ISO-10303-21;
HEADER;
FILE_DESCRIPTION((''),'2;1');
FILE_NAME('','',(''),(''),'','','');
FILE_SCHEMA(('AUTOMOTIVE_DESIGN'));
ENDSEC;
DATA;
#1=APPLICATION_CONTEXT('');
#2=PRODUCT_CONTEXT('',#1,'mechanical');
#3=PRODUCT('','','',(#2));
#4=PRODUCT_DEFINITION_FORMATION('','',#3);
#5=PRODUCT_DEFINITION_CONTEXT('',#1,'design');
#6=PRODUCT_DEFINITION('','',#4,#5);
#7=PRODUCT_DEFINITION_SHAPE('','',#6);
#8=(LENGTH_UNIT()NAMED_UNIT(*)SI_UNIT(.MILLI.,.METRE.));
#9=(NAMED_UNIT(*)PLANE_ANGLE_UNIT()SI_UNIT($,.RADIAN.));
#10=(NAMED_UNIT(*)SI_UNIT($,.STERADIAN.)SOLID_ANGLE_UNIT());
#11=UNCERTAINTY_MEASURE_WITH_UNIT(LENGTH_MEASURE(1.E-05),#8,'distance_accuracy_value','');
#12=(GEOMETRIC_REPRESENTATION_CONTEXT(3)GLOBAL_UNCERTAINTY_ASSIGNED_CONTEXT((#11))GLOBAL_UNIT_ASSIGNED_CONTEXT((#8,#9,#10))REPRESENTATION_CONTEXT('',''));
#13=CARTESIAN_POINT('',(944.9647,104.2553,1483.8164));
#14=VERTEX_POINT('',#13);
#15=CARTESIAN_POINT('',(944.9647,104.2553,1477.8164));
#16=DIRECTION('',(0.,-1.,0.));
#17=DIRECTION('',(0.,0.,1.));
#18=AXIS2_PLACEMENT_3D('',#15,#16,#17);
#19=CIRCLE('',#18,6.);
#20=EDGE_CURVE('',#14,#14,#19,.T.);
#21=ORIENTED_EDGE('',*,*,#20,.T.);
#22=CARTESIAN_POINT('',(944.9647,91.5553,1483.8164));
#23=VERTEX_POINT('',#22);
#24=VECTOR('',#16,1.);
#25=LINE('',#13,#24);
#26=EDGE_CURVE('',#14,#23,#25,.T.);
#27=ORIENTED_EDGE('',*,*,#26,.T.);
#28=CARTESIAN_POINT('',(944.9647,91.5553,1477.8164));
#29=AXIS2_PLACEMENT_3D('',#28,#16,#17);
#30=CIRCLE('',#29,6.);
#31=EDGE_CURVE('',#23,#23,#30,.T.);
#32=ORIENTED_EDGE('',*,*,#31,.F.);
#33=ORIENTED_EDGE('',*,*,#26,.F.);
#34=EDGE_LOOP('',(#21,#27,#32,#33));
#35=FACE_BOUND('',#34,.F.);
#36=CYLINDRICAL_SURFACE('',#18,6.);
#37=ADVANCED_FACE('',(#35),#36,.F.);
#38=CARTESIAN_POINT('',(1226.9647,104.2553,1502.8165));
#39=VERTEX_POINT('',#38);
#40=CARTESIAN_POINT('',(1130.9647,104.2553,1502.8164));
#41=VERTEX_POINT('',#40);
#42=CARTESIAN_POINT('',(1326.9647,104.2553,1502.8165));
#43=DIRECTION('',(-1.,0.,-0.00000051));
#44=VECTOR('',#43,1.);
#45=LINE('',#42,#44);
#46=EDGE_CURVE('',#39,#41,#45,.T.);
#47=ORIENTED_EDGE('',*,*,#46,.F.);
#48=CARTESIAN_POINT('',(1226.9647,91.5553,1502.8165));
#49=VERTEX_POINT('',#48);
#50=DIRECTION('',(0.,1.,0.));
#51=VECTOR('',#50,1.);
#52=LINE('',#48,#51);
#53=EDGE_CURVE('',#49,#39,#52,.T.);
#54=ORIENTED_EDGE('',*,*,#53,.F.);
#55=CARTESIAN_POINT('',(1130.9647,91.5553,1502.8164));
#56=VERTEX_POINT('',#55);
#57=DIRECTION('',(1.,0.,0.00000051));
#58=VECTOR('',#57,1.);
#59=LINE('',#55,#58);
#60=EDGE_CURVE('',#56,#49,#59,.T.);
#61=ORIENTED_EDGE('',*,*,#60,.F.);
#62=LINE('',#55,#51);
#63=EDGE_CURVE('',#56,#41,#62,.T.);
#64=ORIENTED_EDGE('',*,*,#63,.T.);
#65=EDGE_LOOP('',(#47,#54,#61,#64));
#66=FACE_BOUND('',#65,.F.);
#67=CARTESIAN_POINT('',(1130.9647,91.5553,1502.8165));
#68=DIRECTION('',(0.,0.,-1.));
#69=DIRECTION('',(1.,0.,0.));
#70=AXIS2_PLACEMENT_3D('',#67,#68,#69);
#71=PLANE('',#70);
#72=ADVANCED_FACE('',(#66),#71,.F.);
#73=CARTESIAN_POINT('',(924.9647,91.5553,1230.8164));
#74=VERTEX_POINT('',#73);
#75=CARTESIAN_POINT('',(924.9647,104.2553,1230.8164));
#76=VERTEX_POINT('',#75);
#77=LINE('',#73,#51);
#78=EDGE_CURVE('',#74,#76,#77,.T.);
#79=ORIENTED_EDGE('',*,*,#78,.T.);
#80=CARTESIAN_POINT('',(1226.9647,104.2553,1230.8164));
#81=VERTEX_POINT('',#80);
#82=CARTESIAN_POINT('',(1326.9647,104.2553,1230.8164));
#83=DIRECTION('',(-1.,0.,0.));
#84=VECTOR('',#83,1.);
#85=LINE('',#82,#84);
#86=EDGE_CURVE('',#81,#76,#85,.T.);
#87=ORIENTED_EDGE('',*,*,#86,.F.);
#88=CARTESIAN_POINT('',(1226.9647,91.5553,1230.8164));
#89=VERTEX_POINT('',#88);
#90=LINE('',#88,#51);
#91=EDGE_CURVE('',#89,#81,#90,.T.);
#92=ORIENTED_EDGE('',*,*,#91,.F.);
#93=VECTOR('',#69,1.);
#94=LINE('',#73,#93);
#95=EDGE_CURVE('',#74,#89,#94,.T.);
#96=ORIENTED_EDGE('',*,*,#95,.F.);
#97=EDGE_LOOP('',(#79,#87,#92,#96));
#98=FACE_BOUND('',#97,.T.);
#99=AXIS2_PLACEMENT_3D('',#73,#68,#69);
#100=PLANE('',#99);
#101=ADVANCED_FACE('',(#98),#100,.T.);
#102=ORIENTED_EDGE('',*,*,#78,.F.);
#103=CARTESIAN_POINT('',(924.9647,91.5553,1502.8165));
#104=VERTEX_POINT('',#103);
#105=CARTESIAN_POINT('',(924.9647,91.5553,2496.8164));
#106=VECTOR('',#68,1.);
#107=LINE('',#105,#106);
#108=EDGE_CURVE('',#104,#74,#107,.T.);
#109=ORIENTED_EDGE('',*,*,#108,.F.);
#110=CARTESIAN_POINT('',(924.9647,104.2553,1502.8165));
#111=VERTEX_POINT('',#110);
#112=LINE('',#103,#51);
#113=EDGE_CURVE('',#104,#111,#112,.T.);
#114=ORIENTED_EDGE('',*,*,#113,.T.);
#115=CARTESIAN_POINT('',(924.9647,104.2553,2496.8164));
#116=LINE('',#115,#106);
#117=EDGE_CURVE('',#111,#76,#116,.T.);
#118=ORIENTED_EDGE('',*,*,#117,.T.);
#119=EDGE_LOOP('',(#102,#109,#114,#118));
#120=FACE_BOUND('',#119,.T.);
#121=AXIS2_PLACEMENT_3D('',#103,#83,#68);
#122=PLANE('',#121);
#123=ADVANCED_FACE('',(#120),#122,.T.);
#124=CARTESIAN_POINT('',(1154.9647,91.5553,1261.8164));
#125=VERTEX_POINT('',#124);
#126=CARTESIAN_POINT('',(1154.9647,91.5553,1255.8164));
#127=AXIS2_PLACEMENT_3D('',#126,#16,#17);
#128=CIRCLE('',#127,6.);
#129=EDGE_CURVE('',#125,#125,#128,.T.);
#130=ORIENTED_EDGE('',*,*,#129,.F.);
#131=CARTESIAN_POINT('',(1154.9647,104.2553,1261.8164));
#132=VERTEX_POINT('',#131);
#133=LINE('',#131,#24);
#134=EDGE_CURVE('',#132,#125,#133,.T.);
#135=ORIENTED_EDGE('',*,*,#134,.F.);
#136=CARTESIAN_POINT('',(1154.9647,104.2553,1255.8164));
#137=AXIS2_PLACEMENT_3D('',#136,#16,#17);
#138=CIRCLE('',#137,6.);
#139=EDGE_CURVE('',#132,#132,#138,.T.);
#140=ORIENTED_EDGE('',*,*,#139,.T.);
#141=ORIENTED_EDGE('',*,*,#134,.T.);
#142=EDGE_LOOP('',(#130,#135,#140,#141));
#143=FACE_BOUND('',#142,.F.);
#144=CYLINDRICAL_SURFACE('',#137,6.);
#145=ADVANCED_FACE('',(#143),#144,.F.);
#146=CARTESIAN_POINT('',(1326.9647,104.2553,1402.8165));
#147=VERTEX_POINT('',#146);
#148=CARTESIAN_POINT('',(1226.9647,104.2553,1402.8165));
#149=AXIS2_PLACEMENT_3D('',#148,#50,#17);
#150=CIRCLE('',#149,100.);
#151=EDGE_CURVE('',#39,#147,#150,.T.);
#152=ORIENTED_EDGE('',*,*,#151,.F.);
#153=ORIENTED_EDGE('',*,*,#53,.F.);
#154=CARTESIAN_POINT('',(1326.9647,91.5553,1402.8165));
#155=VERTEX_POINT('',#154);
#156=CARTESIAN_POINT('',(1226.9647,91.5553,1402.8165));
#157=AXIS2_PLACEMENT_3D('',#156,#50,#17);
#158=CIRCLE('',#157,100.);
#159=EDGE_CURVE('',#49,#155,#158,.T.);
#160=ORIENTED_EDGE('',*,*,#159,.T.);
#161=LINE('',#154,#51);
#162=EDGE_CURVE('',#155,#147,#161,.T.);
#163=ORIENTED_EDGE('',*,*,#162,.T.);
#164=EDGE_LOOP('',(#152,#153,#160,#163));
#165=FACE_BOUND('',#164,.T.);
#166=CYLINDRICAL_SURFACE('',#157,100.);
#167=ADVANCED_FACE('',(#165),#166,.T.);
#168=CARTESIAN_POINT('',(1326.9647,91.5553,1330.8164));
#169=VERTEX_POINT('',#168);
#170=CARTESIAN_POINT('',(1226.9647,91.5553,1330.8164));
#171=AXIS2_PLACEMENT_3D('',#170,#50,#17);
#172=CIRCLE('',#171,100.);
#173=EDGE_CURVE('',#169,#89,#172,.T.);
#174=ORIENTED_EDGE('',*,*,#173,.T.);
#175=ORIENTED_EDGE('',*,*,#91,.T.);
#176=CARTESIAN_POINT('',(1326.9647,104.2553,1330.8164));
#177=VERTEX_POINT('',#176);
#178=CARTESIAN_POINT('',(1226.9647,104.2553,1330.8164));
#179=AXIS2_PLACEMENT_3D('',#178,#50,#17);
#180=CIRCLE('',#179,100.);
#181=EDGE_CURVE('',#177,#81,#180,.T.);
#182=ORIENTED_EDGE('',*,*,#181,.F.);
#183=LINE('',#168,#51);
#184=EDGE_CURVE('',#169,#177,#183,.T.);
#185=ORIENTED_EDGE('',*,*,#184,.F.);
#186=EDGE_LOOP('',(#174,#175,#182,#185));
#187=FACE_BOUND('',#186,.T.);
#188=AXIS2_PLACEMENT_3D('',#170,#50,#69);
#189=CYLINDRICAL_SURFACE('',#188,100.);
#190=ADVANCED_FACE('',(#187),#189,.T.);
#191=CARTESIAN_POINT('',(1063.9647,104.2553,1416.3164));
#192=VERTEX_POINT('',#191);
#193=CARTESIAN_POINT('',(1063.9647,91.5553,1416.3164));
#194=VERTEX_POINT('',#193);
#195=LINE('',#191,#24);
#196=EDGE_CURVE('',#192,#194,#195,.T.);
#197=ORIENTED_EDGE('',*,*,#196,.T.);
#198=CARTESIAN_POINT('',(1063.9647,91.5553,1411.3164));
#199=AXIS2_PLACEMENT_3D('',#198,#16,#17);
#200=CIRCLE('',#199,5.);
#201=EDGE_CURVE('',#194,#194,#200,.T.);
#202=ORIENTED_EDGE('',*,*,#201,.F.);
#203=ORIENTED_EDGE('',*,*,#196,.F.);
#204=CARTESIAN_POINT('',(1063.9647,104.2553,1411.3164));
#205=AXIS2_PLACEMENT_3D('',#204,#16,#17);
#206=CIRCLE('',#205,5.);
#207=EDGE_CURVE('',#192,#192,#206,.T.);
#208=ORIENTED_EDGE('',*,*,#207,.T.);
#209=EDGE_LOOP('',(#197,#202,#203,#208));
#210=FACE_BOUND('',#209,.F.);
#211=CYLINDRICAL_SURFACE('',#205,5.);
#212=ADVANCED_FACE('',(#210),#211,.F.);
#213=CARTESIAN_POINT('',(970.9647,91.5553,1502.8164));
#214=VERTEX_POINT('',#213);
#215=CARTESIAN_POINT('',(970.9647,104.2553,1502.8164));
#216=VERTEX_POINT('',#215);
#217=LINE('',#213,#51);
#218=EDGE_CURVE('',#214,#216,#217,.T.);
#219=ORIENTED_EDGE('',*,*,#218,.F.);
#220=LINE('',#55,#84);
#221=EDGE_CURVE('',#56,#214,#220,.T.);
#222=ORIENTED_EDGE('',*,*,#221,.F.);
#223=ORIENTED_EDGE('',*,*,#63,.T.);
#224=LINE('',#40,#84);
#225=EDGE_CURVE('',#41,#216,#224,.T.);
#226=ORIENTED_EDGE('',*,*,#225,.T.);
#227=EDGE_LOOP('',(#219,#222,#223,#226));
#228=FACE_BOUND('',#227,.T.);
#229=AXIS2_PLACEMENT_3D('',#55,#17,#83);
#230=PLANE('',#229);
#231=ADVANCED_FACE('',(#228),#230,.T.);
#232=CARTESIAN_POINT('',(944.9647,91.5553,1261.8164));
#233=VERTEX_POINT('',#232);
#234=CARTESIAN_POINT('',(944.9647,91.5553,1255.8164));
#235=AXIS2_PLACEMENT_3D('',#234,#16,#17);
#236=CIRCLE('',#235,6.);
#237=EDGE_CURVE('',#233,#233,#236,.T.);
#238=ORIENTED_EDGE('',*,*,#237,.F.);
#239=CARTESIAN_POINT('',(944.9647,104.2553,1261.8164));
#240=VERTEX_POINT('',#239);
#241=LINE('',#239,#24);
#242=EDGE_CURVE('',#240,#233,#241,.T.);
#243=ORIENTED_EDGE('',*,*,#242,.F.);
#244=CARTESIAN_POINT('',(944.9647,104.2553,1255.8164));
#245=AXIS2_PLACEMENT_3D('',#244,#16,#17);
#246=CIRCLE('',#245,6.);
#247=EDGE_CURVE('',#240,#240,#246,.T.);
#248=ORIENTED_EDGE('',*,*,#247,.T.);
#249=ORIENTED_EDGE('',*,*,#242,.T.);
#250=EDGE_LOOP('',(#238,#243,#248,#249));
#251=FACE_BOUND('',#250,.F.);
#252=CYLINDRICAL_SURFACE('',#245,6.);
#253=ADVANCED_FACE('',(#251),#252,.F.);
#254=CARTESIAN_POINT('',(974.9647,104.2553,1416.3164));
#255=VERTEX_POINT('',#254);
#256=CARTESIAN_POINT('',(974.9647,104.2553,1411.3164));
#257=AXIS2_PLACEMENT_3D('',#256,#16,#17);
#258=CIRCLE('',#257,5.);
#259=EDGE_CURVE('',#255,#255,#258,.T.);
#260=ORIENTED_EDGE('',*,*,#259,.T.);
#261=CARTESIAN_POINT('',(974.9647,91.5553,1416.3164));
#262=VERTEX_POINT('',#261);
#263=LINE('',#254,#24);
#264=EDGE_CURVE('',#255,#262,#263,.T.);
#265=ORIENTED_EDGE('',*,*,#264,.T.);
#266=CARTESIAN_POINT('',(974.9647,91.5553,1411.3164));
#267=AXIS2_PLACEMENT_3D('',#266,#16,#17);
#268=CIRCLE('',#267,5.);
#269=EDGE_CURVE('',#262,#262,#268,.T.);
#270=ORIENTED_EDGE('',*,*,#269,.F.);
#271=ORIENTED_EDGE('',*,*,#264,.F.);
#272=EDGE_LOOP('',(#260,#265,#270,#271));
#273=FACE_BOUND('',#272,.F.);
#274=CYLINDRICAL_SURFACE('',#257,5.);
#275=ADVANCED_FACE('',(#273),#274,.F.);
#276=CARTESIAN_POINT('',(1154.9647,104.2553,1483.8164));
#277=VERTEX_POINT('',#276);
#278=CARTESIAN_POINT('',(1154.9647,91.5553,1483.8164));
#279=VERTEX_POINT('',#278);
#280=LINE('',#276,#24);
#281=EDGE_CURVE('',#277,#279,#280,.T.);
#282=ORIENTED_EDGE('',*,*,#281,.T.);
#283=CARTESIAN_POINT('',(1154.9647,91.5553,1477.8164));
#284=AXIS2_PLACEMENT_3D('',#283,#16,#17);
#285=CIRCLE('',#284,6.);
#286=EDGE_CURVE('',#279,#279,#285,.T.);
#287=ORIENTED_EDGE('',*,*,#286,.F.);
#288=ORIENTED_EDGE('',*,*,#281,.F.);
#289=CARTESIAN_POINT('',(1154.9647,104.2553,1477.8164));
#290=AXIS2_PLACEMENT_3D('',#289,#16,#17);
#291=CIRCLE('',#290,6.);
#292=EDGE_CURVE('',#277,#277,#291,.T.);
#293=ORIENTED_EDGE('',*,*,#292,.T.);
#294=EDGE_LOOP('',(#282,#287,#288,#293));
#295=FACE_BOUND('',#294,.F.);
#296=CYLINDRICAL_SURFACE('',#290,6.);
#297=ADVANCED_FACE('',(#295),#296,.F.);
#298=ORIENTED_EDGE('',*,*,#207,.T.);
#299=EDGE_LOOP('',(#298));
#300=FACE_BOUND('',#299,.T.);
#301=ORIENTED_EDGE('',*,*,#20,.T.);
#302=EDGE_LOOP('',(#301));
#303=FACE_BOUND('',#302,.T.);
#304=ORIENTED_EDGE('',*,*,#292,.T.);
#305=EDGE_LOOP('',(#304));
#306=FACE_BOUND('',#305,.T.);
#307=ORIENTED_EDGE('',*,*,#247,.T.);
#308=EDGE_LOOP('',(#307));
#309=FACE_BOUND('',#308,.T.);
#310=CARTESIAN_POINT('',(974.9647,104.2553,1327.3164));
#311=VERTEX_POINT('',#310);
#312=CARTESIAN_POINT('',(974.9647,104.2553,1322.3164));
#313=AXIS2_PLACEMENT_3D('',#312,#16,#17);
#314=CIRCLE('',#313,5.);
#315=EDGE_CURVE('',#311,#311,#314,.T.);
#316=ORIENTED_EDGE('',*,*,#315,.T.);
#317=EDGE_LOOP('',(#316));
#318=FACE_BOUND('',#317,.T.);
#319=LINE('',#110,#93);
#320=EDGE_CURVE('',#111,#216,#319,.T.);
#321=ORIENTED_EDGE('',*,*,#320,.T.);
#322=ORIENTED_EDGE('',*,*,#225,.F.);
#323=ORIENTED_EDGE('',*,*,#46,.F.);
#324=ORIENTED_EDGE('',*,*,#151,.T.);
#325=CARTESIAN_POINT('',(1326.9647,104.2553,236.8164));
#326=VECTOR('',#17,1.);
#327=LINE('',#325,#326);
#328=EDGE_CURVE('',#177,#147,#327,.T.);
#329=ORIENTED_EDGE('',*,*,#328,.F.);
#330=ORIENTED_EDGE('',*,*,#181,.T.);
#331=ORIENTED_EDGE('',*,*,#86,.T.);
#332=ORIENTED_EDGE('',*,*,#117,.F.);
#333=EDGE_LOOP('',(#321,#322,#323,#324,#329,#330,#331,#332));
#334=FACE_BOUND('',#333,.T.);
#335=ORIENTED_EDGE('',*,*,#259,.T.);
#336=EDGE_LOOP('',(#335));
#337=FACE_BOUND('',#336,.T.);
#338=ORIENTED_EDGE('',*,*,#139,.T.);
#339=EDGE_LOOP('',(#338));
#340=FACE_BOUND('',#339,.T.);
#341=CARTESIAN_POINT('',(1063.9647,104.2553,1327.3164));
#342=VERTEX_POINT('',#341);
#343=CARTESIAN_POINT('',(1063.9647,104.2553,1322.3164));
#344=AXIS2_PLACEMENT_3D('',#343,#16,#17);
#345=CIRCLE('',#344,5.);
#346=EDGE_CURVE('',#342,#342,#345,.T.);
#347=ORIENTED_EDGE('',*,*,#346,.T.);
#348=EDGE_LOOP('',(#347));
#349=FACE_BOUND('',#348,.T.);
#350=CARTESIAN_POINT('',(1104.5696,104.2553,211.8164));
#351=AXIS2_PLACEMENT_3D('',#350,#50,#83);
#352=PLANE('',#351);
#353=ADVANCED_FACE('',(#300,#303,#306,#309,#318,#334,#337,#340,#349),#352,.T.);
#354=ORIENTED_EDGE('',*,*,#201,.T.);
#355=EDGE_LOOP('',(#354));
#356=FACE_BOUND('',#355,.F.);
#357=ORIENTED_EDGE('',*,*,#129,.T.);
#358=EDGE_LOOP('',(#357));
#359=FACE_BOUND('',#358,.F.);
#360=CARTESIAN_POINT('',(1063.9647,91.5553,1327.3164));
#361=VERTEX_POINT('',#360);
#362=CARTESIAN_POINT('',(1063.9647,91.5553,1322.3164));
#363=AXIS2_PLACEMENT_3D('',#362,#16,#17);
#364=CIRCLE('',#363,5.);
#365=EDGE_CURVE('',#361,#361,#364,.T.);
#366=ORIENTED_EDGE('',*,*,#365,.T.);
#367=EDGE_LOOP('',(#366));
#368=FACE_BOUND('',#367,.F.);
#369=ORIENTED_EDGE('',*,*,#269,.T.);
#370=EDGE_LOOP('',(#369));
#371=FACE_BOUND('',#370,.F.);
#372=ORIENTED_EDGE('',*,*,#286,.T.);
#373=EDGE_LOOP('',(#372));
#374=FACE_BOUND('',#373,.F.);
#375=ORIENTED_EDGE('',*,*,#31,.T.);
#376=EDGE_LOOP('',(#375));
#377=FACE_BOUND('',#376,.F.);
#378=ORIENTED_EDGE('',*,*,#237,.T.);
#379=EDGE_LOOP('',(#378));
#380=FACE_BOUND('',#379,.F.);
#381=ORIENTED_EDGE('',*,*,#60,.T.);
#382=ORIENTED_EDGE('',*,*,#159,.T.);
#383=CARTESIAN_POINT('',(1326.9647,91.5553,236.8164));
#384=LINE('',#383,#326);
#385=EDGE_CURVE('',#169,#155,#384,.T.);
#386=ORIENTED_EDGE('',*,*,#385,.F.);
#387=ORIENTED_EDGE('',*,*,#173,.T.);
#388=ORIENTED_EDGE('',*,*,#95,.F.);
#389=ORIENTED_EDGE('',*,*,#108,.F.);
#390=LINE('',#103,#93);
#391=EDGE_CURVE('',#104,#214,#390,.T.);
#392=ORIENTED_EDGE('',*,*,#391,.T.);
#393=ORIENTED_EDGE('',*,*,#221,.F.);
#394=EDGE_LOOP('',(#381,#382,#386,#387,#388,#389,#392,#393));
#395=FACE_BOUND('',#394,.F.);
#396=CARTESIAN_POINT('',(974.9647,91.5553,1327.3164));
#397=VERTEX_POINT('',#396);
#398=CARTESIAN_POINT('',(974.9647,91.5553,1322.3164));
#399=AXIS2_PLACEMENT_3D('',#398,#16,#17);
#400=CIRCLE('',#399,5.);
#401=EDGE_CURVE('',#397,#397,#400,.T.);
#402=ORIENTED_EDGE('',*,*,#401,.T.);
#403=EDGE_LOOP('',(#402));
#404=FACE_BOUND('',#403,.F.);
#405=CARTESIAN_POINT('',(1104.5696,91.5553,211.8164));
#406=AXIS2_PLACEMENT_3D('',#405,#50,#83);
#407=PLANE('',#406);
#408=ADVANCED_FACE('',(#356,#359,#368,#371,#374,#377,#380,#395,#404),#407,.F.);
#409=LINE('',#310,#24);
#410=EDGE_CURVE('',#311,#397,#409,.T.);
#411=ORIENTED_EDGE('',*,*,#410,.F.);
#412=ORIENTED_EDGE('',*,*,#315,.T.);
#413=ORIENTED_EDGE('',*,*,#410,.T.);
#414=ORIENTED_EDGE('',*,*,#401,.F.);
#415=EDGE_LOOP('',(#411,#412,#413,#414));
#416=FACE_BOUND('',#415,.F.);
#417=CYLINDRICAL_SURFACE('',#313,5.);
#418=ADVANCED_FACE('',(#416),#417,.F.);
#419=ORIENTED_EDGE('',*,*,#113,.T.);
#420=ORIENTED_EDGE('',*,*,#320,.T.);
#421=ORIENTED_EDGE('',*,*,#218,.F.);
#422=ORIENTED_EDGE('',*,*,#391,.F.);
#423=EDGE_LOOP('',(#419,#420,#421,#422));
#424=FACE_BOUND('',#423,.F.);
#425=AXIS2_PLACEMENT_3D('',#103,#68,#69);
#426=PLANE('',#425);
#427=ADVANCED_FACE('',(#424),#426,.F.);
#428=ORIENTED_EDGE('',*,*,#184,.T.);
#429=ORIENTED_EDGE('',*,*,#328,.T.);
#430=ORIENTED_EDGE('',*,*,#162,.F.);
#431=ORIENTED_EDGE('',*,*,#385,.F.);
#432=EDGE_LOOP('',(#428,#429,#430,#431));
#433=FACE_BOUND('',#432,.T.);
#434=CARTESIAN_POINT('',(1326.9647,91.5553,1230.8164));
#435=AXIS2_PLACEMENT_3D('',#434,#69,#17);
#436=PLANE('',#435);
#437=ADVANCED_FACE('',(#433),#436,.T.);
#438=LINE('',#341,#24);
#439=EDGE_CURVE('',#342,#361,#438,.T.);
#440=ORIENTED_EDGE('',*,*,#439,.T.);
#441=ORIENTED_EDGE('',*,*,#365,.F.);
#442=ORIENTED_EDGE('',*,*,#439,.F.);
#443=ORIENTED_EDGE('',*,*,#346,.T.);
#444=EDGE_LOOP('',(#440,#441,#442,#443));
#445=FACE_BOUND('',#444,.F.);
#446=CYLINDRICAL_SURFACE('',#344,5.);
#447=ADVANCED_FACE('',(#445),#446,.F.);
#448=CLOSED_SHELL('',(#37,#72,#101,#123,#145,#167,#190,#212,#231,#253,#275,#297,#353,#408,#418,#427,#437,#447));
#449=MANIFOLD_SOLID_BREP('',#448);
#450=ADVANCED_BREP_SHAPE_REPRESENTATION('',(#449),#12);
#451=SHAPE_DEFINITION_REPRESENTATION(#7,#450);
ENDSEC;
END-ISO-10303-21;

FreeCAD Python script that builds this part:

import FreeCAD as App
import Part
import Sketcher
from FreeCAD import Vector
Q = App.Units.Quantity


def edges_at(feature, points):
    """Names of the edges that pass closest to the given points."""
    edges = feature.Shape.Edges
    near = lambda p: min(range(len(edges)), key=lambda i: edges[i].distToShape(Part.Vertex(*p))[0])
    return sorted({f"Edge{near(p) + 1}" for p in points})


def add_polygon(sketch, points):
    """Adds a closed chain of lines whose ends are joined by coincident constraints."""
    first, n = sketch.GeometryCount, len(points)
    for a, b in zip(points, points[1:] + points[:1]):
        sketch.addGeometry(Part.LineSegment(App.Vector(*a, 0), App.Vector(*b, 0)), False)
    for i in range(n):
        sketch.addConstraint(Sketcher.Constraint("Coincident", first + i, 2, first + (i + 1) % n, 1))

doc = App.newDocument("Part")
body = doc.addObject("PartDesign::Body", "Body")

# Sketch on XZ plane
sketch1 = body.newObject("Sketcher::SketchObject", "Sketch")
sketch1.AttachmentSupport = (doc.getObject("XZ_Plane"), [""])
sketch1.MapMode = "FlatFace"
sketch1.AttachmentOffset = App.Placement(Vector(0, 0, -91.5553), App.Rotation())
add_polygon(sketch1, [(970.9647, 1502.8164), (1326.9647, 1502.8165), (1326.9647, 1230.8164), (924.9647, 1230.8164), (924.9647, 1502.8165)])  # lines 0-4
sketch1.addConstraint([
    Sketcher.Constraint("Horizontal", 0),
    Sketcher.Constraint("Vertical", 1),
    Sketcher.Constraint("Horizontal", 2),
    Sketcher.Constraint("Vertical", 3),
    Sketcher.Constraint("Horizontal", 4),
    Sketcher.Constraint("DistanceX", 0, 1, 0, 2, Q("356 mm")),
    Sketcher.Constraint("DistanceX", 2, 2, 2, 1, Q("402 mm")),
    Sketcher.Constraint("DistanceY", 1, 2, 1, 1, Q("272 mm")),
    Sketcher.Constraint("DistanceX", -1, 1, 0, 2, Q("1326.9647 mm")),
    Sketcher.Constraint("DistanceY", -1, 1, 0, 2, Q("1502.8165 mm")),
])
pad1 = body.newObject("PartDesign::Pad", "Pad")
pad1.Profile = sketch1
pad1.Length = 12.7
pad1.Reversed = True

# Sketch on XZ plane
sketch2 = body.newObject("Sketcher::SketchObject", "Sketch001")
sketch2.AttachmentSupport = (doc.getObject("XZ_Plane"), [""])
sketch2.MapMode = "FlatFace"
sketch2.AttachmentOffset = App.Placement(Vector(0, 0, -104.2553), App.Rotation())
sketch2.addGeometry([
    Part.Circle(Vector(944.9647, 1477.8164, 0), Vector(0, 0, 1), 6),
    Part.Circle(Vector(944.9647, 1255.8164, 0), Vector(0, 0, 1), 6),
    Part.Circle(Vector(1154.9647, 1255.8164, 0), Vector(0, 0, 1), 6),
    Part.Circle(Vector(1154.9647, 1477.8164, 0), Vector(0, 0, 1), 6),
], False)
sketch2.addConstraint([
    Sketcher.Constraint("Equal", 0, 1),
    Sketcher.Constraint("Equal", 1, 2),
    Sketcher.Constraint("Equal", 2, 3),
    Sketcher.Constraint("Horizontal", 1, 3, 2, 3),
    Sketcher.Constraint("Horizontal", 0, 3, 3, 3),
    Sketcher.Constraint("Vertical", 0, 3, 1, 3),
    Sketcher.Constraint("Vertical", 2, 3, 3, 3),
    Sketcher.Constraint("Diameter", 0, Q("12 mm")),
    Sketcher.Constraint("DistanceY", 1, 3, 0, 3, Q("222 mm")),
    Sketcher.Constraint("DistanceX", 1, 3, 2, 3, Q("210 mm")),
    Sketcher.Constraint("DistanceX", -1, 1, 0, 3, Q("944.9647 mm")),
    Sketcher.Constraint("DistanceY", -1, 1, 0, 3, Q("1477.8164 mm")),
])
doc.recompute()
hole = body.newObject("PartDesign::Hole", "Hole")
hole.Profile = sketch2
hole.ThreadType = "None"
hole.Diameter = 12
hole.DepthType = "ThroughAll"
hole.Reversed = True
doc.recompute()

fillet = body.newObject("PartDesign::Fillet", "Fillet")
fillet.Base = (hole, edges_at(hole, [(1326.965, 97.905, 1502.816)]))
fillet.Radius = 100
doc.recompute()

fillet2 = body.newObject("PartDesign::Fillet", "Fillet001")
fillet2.Base = (fillet, edges_at(fillet, [(1326.965, 97.905, 1230.816)]))
fillet2.Radius = 100

# Sketch on XZ plane
sketch3 = body.newObject("Sketcher::SketchObject", "Sketch002")
sketch3.AttachmentSupport = (doc.getObject("XZ_Plane"), [""])
sketch3.MapMode = "FlatFace"
sketch3.AttachmentOffset = App.Placement(Vector(0, 0, -104.2553), App.Rotation())
sketch3.addGeometry([
    Part.Circle(Vector(974.9647, 1322.3164, 0), Vector(0, 0, 1), 5),
    Part.Circle(Vector(1063.9647, 1322.3164, 0), Vector(0, 0, 1), 5),
    Part.Circle(Vector(1063.9647, 1411.3164, 0), Vector(0, 0, 1), 5),
    Part.Circle(Vector(974.9647, 1411.3164, 0), Vector(0, 0, 1), 5),
], False)
sketch3.addConstraint([
    Sketcher.Constraint("Equal", 0, 1),
    Sketcher.Constraint("Equal", 1, 2),
    Sketcher.Constraint("Equal", 2, 3),
    Sketcher.Constraint("Horizontal", 0, 3, 1, 3),
    Sketcher.Constraint("Horizontal", 2, 3, 3, 3),
    Sketcher.Constraint("Vertical", 1, 3, 2, 3),
    Sketcher.Constraint("Vertical", 0, 3, 3, 3),
    Sketcher.Constraint("Diameter", 0, Q("10 mm")),
    Sketcher.Constraint("DistanceX", 0, 3, 1, 3, Q("89 mm")),
    Sketcher.Constraint("DistanceY", 1, 3, 2, 3, Q("89 mm")),
    Sketcher.Constraint("DistanceX", -1, 1, 0, 3, Q("974.9647 mm")),
    Sketcher.Constraint("DistanceY", -1, 1, 0, 3, Q("1322.3164 mm")),
])
doc.recompute()
hole2 = body.newObject("PartDesign::Hole", "Hole001")
hole2.Profile = sketch3
hole2.ThreadType = "None"
hole2.Diameter = 10
hole2.DepthType = "ThroughAll"
hole2.Reversed = True

doc.recompute()
